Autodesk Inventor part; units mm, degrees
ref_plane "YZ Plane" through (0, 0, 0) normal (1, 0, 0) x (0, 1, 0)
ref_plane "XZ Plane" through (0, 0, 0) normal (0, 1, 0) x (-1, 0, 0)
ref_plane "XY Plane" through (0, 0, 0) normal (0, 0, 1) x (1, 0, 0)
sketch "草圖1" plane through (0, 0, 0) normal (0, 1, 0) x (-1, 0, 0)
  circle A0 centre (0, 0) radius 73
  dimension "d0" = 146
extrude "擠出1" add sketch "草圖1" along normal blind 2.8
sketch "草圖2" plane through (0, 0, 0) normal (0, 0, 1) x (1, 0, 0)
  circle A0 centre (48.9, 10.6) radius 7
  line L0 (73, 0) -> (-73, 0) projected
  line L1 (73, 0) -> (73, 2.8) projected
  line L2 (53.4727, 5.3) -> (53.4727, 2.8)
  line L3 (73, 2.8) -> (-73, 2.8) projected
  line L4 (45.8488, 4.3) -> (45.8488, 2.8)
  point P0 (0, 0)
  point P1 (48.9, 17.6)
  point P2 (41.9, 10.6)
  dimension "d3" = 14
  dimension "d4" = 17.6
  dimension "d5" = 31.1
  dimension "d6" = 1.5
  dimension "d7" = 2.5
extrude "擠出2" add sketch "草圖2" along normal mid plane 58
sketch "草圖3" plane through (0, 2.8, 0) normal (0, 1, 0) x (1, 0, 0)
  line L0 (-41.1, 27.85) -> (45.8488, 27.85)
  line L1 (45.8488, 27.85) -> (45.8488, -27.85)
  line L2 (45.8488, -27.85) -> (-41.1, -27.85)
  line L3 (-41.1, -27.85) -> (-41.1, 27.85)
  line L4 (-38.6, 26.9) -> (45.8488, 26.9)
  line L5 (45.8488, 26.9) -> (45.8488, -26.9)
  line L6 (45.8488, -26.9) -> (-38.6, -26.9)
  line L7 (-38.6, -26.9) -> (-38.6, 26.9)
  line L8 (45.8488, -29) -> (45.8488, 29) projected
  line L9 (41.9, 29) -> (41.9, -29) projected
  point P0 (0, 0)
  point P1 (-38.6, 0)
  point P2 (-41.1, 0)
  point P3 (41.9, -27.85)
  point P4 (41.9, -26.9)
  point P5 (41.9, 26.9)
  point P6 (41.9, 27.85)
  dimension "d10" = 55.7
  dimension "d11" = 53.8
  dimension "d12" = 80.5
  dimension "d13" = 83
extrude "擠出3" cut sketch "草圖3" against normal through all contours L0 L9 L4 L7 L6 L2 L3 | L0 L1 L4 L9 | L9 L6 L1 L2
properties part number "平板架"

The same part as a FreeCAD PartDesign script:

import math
import FreeCAD as App
import Part
import Sketcher

V = App.Vector
Q = App.Units.Quantity


def add_polygon(sketch, points):
    """Adds a closed chain of lines whose ends are joined by coincident constraints."""
    first, n = sketch.GeometryCount, len(points)
    for a, b in zip(points, points[1:] + points[:1]):
        sketch.addGeometry(Part.LineSegment(App.Vector(*a, 0), App.Vector(*b, 0)), False)
    for i in range(n):
        sketch.addConstraint(Sketcher.Constraint("Coincident", first + i, 2, first + (i + 1) % n, 1))

doc = App.newDocument("Part")
body = doc.addObject("PartDesign::Body", "Body")

# Sketch on XZ plane
sketch1 = body.newObject("Sketcher::SketchObject", "Sketch")
sketch1.AttachmentSupport = (doc.getObject("XZ_Plane"), [""])
sketch1.MapMode = "FlatFace"
sketch1.addGeometry(Part.Circle(V(0, 0, 0), V(0, 0, 1), 73), False)
sketch1.addConstraint([
    Sketcher.Constraint("Coincident", 0, 3, -1, 1),
    Sketcher.Constraint("Diameter", 0, Q("146 mm")),
])
pad1 = body.newObject("PartDesign::Pad", "Pad")
pad1.Profile = sketch1
pad1.Length = 2.8
pad1.Reversed = True

# Sketch on XY plane
sketch2 = body.newObject("Sketcher::SketchObject", "Sketch001")
sketch2.AttachmentSupport = (doc.getObject("XY_Plane"), [""])
sketch2.MapMode = "FlatFace"
sketch2.addGeometry([
    Part.ArcOfCircle(Part.Circle(V(48.9, 10.6, 0), V(0, 0, 1), 7), math.radians(-49.213243), math.radians(244.158283)),
    Part.LineSegment(V(45.8488, 4.3, 0), V(45.8488, 2.8, 0)),
    Part.LineSegment(V(45.8488, 2.8, 0), V(53.4727, 2.8, 0)),
    Part.LineSegment(V(53.4727, 2.8, 0), V(53.4727, 5.3, 0)),
], False)
sketch2.addConstraint([
    Sketcher.Constraint("Coincident", 0, 2, 1, 1),
    Sketcher.Constraint("Coincident", 1, 2, 2, 1),
    Sketcher.Constraint("Coincident", 2, 2, 3, 1),
    Sketcher.Constraint("Coincident", 3, 2, 0, 1),
    Sketcher.Constraint("Vertical", 1),
    Sketcher.Constraint("Horizontal", 2),
    Sketcher.Constraint("Vertical", 3),
    Sketcher.Constraint("Radius", 0, Q("7 mm")),
    Sketcher.Constraint("DistanceY", 1, 2, 1, 1, Q("1.5 mm")),
    Sketcher.Constraint("DistanceY", 3, 1, 3, 2, Q("2.5 mm")),
    Sketcher.Constraint("DistanceX", -1, 1, 0, 3, Q("48.9 mm")),
    Sketcher.Constraint("DistanceY", -1, 1, 0, 3, Q("10.6 mm")),
    Sketcher.Constraint("DistanceY", -1, 1, 0, 2, Q("4.3 mm")),
])
pad2 = body.newObject("PartDesign::Pad", "Pad001")
pad2.Profile = sketch2
pad2.Length = 58
pad2.Midplane = True

# Sketch on XZ plane
sketch3 = body.newObject("Sketcher::SketchObject", "Sketch002")
sketch3.AttachmentSupport = (doc.getObject("XZ_Plane"), [""])
sketch3.MapMode = "FlatFace"
sketch3.AttachmentOffset = App.Placement(V(0, 0, -2.8), App.Rotation())
add_polygon(sketch3, [(-41.1, -27.85), (-41.1, 27.85), (45.8488, 27.85), (45.8488, 26.9), (-38.6, 26.9), (-38.6, -26.9), (45.8488, -26.9), (45.8488, -27.85)])  # lines 0-7
sketch3.addConstraint([
    Sketcher.Constraint("Vertical", 0),
    Sketcher.Constraint("Horizontal", 1),
    Sketcher.Constraint("Vertical", 2),
    Sketcher.Constraint("Horizontal", 3),
    Sketcher.Constraint("Vertical", 4),
    Sketcher.Constraint("Horizontal", 5),
    Sketcher.Constraint("Vertical", 6),
    Sketcher.Constraint("Horizontal", 7),
    Sketcher.Constraint("Symmetric", 2, 2, 5, 2, -1),
    Sketcher.Constraint("Equal", 2, 6),
    Sketcher.Constraint("DistanceY", 0, 1, 0, 2, Q("55.7 mm")),
    Sketcher.Constraint("DistanceY", 4, 2, 4, 1, Q("53.8 mm")),
    Sketcher.Constraint("DistanceX", 0, 2, -1, 1, Q("41.1 mm")),
    Sketcher.Constraint("DistanceX", 3, 2, -1, 1, Q("38.6 mm")),
    Sketcher.Constraint("DistanceX", 1, 1, 1, 2, Q("86.9488 mm")),
])
pocket1 = body.newObject("PartDesign::Pocket", "Pocket")
pocket1.Profile = sketch3
pocket1.Type = "ThroughAll"
pocket1.Reversed = True

doc.recompute()
